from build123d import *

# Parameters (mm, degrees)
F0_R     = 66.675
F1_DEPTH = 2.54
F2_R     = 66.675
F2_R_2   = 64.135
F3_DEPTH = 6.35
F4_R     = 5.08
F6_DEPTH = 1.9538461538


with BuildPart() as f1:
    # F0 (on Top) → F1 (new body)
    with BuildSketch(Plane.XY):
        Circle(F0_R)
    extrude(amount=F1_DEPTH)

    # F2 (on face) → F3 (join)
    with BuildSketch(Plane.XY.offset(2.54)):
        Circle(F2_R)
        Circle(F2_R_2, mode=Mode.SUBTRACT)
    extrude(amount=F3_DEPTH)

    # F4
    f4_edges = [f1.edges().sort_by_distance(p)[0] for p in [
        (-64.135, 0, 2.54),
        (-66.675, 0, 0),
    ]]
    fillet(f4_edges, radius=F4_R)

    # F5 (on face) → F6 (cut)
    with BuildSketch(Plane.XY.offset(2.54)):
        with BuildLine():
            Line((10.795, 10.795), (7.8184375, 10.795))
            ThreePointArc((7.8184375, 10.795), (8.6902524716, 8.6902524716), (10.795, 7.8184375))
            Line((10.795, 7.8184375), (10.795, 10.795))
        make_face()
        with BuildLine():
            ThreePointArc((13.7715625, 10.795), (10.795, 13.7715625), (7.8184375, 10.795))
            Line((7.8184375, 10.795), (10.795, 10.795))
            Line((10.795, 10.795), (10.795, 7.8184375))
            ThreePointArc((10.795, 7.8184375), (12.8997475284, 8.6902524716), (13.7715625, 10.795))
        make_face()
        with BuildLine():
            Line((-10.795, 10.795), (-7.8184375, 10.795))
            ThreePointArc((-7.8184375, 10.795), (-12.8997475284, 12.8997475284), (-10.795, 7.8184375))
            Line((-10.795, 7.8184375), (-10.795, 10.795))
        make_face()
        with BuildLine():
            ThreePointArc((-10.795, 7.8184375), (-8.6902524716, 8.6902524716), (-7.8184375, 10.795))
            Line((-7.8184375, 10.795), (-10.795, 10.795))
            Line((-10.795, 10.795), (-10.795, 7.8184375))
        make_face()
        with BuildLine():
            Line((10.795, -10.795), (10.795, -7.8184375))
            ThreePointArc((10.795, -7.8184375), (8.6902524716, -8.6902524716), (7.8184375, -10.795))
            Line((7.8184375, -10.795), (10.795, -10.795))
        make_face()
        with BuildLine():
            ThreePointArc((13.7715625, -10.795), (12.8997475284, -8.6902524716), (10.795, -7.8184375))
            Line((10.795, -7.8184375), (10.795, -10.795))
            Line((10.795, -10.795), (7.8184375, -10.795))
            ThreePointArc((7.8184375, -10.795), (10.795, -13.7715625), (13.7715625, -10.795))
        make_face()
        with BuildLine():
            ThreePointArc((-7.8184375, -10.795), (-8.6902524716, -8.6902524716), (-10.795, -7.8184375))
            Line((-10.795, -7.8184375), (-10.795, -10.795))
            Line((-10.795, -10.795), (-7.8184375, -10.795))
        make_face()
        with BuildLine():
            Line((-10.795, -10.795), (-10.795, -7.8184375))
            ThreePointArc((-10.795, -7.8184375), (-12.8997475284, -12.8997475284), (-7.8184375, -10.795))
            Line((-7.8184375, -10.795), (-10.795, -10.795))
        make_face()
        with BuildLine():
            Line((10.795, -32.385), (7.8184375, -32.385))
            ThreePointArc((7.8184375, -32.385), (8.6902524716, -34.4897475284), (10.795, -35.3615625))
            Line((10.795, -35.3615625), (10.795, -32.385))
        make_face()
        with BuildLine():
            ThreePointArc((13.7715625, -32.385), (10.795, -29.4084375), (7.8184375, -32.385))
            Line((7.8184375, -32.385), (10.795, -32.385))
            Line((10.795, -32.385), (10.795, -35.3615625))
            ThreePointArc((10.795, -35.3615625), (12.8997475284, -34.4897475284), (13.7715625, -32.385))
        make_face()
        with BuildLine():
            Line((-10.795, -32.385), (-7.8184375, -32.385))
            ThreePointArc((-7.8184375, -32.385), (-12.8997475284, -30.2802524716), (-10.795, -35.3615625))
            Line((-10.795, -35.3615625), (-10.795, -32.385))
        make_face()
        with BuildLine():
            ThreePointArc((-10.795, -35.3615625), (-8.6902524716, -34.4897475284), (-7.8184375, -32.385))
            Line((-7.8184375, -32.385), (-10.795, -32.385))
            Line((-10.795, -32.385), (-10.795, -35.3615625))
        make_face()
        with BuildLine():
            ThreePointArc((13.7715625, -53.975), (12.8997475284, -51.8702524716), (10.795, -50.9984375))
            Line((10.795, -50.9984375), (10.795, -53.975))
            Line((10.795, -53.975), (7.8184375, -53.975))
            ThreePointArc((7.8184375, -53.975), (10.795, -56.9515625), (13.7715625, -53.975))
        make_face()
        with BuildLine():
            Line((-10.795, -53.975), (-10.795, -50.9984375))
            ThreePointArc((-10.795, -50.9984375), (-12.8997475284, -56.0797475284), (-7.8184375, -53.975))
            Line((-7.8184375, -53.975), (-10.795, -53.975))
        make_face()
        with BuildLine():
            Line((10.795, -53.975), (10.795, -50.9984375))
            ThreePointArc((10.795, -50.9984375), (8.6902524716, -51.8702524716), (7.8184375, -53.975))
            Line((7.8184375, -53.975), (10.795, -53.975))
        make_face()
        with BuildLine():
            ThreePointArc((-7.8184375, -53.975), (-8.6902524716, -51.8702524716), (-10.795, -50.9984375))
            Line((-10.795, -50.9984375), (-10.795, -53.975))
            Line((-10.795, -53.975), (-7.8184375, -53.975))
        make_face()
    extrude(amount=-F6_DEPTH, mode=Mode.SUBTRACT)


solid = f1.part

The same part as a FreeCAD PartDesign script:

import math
import FreeCAD as App
import Part
import Sketcher
from FreeCAD import Vector
Q = App.Units.Quantity


def edges_at(feature, points):
    """Names of the edges that pass closest to the given points."""
    edges = feature.Shape.Edges
    near = lambda p: min(range(len(edges)), key=lambda i: edges[i].distToShape(Part.Vertex(*p))[0])
    return sorted({f"Edge{near(p) + 1}" for p in points})

doc = App.newDocument("Part")
params = doc.addObject("Spreadsheet::Sheet", "Params")
for row, (alias, value) in enumerate([
    ("sketch1_diameter", "5.25 in"),
    ("pad1_length", "0.1 in"),
    ("sketch2_diameter", "5.25 in"),
    ("sketch2_diameter2", "5.05 in"),
    ("pad2_length", "0.25 in"),
    ("fillet_radius", "0.2 in"),
    ("pocket1_length", "1.953846 mm"),
], start=1):
    params.set(f"A{row}", alias)
    params.set(f"B{row}", "=" + value)
    params.setAlias(f"B{row}", alias)

body = doc.addObject("PartDesign::Body", "Body")

sketch1 = body.newObject("Sketcher::SketchObject", "Sketch")
sketch1.AttachmentSupport = (doc.getObject("XY_Plane"), [""])
sketch1.MapMode = "FlatFace"
sketch1.addGeometry(Part.Circle(Vector(0, 0, 0), Vector(0, 0, 1), 66.675), False)
sketch1.addConstraint(Sketcher.Constraint("Coincident", 0, 3, -1, 1))
sketch1.addConstraint(Sketcher.Constraint("Diameter", 0, Q("5.25 in")))
sketch1.setExpression("Constraints[1]", "Params.sketch1_diameter")
pad1 = body.newObject("PartDesign::Pad", "Pad")
pad1.Profile = sketch1
pad1.setExpression("Length", "Params.pad1_length")

sketch2 = body.newObject("Sketcher::SketchObject", "Sketch001")
sketch2.AttachmentSupport = (doc.getObject("XY_Plane"), [""])
sketch2.MapMode = "FlatFace"
sketch2.AttachmentOffset = App.Placement(Vector(0, 0, 0.1 * 25.4), App.Rotation())
sketch2.addGeometry(Part.Circle(Vector(0, 0, 0), Vector(0, 0, 1), 66.675), False)
sketch2.addGeometry(Part.Circle(Vector(0, 0, 0), Vector(0, 0, 1), 64.135), False)
sketch2.addConstraint(Sketcher.Constraint("Coincident", 0, 3, -1, 1))
sketch2.addConstraint(Sketcher.Constraint("Coincident", 1, 3, -1, 1))
sketch2.addConstraint(Sketcher.Constraint("Diameter", 0, Q("5.25 in")))
sketch2.addConstraint(Sketcher.Constraint("Diameter", 1, Q("5.05 in")))
sketch2.setExpression("Constraints[2]", "Params.sketch2_diameter")
sketch2.setExpression("Constraints[3]", "Params.sketch2_diameter2")
pad2 = body.newObject("PartDesign::Pad", "Pad001")
pad2.Profile = sketch2
pad2.setExpression("Length", "Params.pad2_length")
doc.recompute()

fillet = body.newObject("PartDesign::Fillet", "Fillet")
fillet.Base = (pad2, edges_at(pad2, [(-64.135, 0, 2.54), (-66.675, 0, 0)]))
fillet.setExpression("Radius", "Params.fillet_radius")

sketch3 = body.newObject("Sketcher::SketchObject", "Sketch002")
sketch3.AttachmentSupport = (doc.getObject("XY_Plane"), [""])
sketch3.MapMode = "FlatFace"
sketch3.AttachmentOffset = App.Placement(Vector(0, 0, 0.1 * 25.4), App.Rotation())
sketch3.addGeometry(Part.ArcOfCircle(Part.Circle(Vector(10.795, 10.795, 0), Vector(0, 0, 1), 2.976562), math.radians(180), math.radians(270)), False)
sketch3.addGeometry(Part.ArcOfCircle(Part.Circle(Vector(10.795, 10.795, 0), Vector(0, 0, 1), 2.976562), math.radians(-90), math.radians(0)), False)
sketch3.addGeometry(Part.ArcOfCircle(Part.Circle(Vector(10.795, 10.795, 0), Vector(0, 0, 1), 2.976562), math.radians(0), math.radians(180)), False)
sketch3.addGeometry(Part.ArcOfCircle(Part.Circle(Vector(-10.795, 10.795, 0), Vector(0, 0, 1), 2.976562), math.radians(0), math.radians(270)), False)
sketch3.addGeometry(Part.ArcOfCircle(Part.Circle(Vector(-10.795, 10.795, 0), Vector(0, 0, 1), 2.976562), math.radians(-90), math.radians(0)), False)
sketch3.addGeometry(Part.ArcOfCircle(Part.Circle(Vector(10.795, -10.795, 0), Vector(0, 0, 1), 2.976562), math.radians(90), math.radians(180)), False)
sketch3.addGeometry(Part.ArcOfCircle(Part.Circle(Vector(10.795, -10.795, 0), Vector(0, 0, 1), 2.976562), math.radians(180), math.radians(360)), False)
sketch3.addGeometry(Part.ArcOfCircle(Part.Circle(Vector(10.795, -10.795, 0), Vector(0, 0, 1), 2.976562), math.radians(0), math.radians(90)), False)
sketch3.addGeometry(Part.ArcOfCircle(Part.Circle(Vector(-10.795, -10.795, 0), Vector(0, 0, 1), 2.976562), math.radians(0), math.radians(90)), False)
sketch3.addGeometry(Part.ArcOfCircle(Part.Circle(Vector(-10.795, -10.795, 0), Vector(0, 0, 1), 2.976562), math.radians(90), math.radians(360)), False)
sketch3.addGeometry(Part.ArcOfCircle(Part.Circle(Vector(10.795, -32.385, 0), Vector(0, 0, 1), 2.976562), math.radians(180), math.radians(270)), False)
sketch3.addGeometry(Part.ArcOfCircle(Part.Circle(Vector(10.795, -32.385, 0), Vector(0, 0, 1), 2.976562), math.radians(-90), math.radians(0)), False)
sketch3.addGeometry(Part.ArcOfCircle(Part.Circle(Vector(10.795, -32.385, 0), Vector(0, 0, 1), 2.976562), math.radians(0), math.radians(180)), False)
sketch3.addGeometry(Part.ArcOfCircle(Part.Circle(Vector(-10.795, -32.385, 0), Vector(0, 0, 1), 2.976562), math.radians(0), math.radians(270)), False)
sketch3.addGeometry(Part.ArcOfCircle(Part.Circle(Vector(-10.795, -32.385, 0), Vector(0, 0, 1), 2.976562), math.radians(-90), math.radians(0)), False)
sketch3.addGeometry(Part.ArcOfCircle(Part.Circle(Vector(10.795, -53.975, 0), Vector(0, 0, 1), 2.976562), math.radians(0), math.radians(90)), False)
sketch3.addGeometry(Part.ArcOfCircle(Part.Circle(Vector(10.795, -53.975, 0), Vector(0, 0, 1), 2.976562), math.radians(90), math.radians(180)), False)
sketch3.addGeometry(Part.ArcOfCircle(Part.Circle(Vector(10.795, -53.975, 0), Vector(0, 0, 1), 2.976562), math.radians(180), math.radians(360)), False)
sketch3.addGeometry(Part.ArcOfCircle(Part.Circle(Vector(-10.795, -53.975, 0), Vector(0, 0, 1), 2.976562), math.radians(90), math.radians(360)), False)
sketch3.addGeometry(Part.ArcOfCircle(Part.Circle(Vector(-10.795, -53.975, 0), Vector(0, 0, 1), 2.976562), math.radians(0), math.radians(90)), False)
sketch3.addConstraint(Sketcher.Constraint("Tangent", 0, 2, 1, 1))
sketch3.addConstraint(Sketcher.Constraint("Tangent", 1, 2, 2, 1))
sketch3.addConstraint(Sketcher.Constraint("Tangent", 2, 2, 0, 1))
sketch3.addConstraint(Sketcher.Constraint("Tangent", 3, 1, 4, 2))
sketch3.addConstraint(Sketcher.Constraint("Coincident", 4, 1, 3, 2))
sketch3.addConstraint(Sketcher.Constraint("Tangent", 5, 2, 6, 1))
sketch3.addConstraint(Sketcher.Constraint("Tangent", 6, 2, 7, 1))
sketch3.addConstraint(Sketcher.Constraint("Tangent", 7, 2, 5, 1))
sketch3.addConstraint(Sketcher.Constraint("Tangent", 8, 1, 9, 2))
sketch3.addConstraint(Sketcher.Constraint("Coincident", 9, 1, 8, 2))
sketch3.addConstraint(Sketcher.Constraint("Tangent", 10, 2, 11, 1))
sketch3.addConstraint(Sketcher.Constraint("Tangent", 11, 2, 12, 1))
sketch3.addConstraint(Sketcher.Constraint("Tangent", 12, 2, 10, 1))
sketch3.addConstraint(Sketcher.Constraint("Tangent", 13, 1, 14, 2))
sketch3.addConstraint(Sketcher.Constraint("Coincident", 14, 1, 13, 2))
sketch3.addConstraint(Sketcher.Constraint("Tangent", 15, 2, 16, 1))
sketch3.addConstraint(Sketcher.Constraint("Tangent", 16, 2, 17, 1))
sketch3.addConstraint(Sketcher.Constraint("Tangent", 17, 2, 15, 1))
sketch3.addConstraint(Sketcher.Constraint("Tangent", 18, 1, 19, 2))
sketch3.addConstraint(Sketcher.Constraint("Coincident", 19, 1, 18, 2))
sketch3.addConstraint(Sketcher.Constraint("Equal", 2, 3))
sketch3.addConstraint(Sketcher.Constraint("Equal", 4, 5))
sketch3.addConstraint(Sketcher.Constraint("Equal", 7, 8))
sketch3.addConstraint(Sketcher.Constraint("Equal", 9, 10))
sketch3.addConstraint(Sketcher.Constraint("Equal", 12, 13))
sketch3.addConstraint(Sketcher.Constraint("Equal", 14, 15))
sketch3.addConstraint(Sketcher.Constraint("Equal", 17, 18))
sketch3.addConstraint(Sketcher.Constraint("Symmetric", 3, 3, 5, 3, -1, 1))
sketch3.addConstraint(Sketcher.Constraint("Symmetric", 0, 3, 8, 3, -1, 1))
sketch3.addConstraint(Sketcher.Constraint("Symmetric", 0, 3, 3, 3, -2))
sketch3.addConstraint(Sketcher.Constraint("Symmetric", 10, 3, 13, 3, -2))
sketch3.addConstraint(Sketcher.Constraint("Symmetric", 15, 3, 18, 3, -2))
sketch3.addConstraint(Sketcher.Constraint("Horizontal", 4, 3, 1, 2))
sketch3.addConstraint(Sketcher.Constraint("Horizontal", 1, 2, 2, 2))
sketch3.addConstraint(Sketcher.Constraint("Horizontal", 2, 2, 3, 1))
sketch3.addConstraint(Sketcher.Constraint("Horizontal", 9, 3, 5, 2))
sketch3.addConstraint(Sketcher.Constraint("Horizontal", 5, 2, 6, 2))
sketch3.addConstraint(Sketcher.Constraint("Horizontal", 6, 2, 8, 1))
sketch3.addConstraint(Sketcher.Constraint("Horizontal", 14, 3, 11, 2))
sketch3.addConstraint(Sketcher.Constraint("Horizontal", 11, 2, 12, 2))
sketch3.addConstraint(Sketcher.Constraint("Horizontal", 12, 2, 13, 1))
sketch3.addConstraint(Sketcher.Constraint("Horizontal", 19, 3, 16, 2))
sketch3.addConstraint(Sketcher.Constraint("Horizontal", 16, 2, 17, 2))
sketch3.addConstraint(Sketcher.Constraint("Horizontal", 17, 2, 19, 1))
sketch3.addConstraint(Sketcher.Constraint("Vertical", 7, 3, 10, 3))
sketch3.addConstraint(Sketcher.Constraint("Vertical", 12, 3, 15, 3))
sketch3.addConstraint(Sketcher.Constraint("Vertical", 17, 3, 0, 2))
sketch3.addConstraint(Sketcher.Constraint("Vertical", 19, 3, 4, 1))
sketch3.addConstraint(Sketcher.Constraint("Vertical", 0, 2, 7, 2))
sketch3.addConstraint(Sketcher.Constraint("Vertical", 4, 1, 9, 1))
sketch3.addConstraint(Sketcher.Constraint("Vertical", 7, 2, 10, 2))
sketch3.addConstraint(Sketcher.Constraint("Vertical", 9, 1, 14, 1))
sketch3.addConstraint(Sketcher.Constraint("Vertical", 10, 2, 15, 2))
sketch3.addConstraint(Sketcher.Constraint("Vertical", 14, 1, 18, 1))
sketch3.addConstraint(Sketcher.Constraint("DistanceX", 3, 3, 0, 3, Q("0.85 in")))
sketch3.addConstraint(Sketcher.Constraint("DistanceY", 5, 3, 0, 3, Q("0.85 in")))
sketch3.addConstraint(Sketcher.Constraint("DistanceY", 10, 3, 5, 3, Q("0.85 in")))
sketch3.addConstraint(Sketcher.Constraint("DistanceY", 15, 3, 10, 3, Q("0.85 in")))
sketch3.addConstraint(Sketcher.Constraint("DistanceX", 2, 2, 1, 2, Q("0.234375 in")))
pocket1 = body.newObject("PartDesign::Pocket", "Pocket")
pocket1.Profile = sketch3
pocket1.setExpression("Length", "Params.pocket1_length")

doc.recompute()
